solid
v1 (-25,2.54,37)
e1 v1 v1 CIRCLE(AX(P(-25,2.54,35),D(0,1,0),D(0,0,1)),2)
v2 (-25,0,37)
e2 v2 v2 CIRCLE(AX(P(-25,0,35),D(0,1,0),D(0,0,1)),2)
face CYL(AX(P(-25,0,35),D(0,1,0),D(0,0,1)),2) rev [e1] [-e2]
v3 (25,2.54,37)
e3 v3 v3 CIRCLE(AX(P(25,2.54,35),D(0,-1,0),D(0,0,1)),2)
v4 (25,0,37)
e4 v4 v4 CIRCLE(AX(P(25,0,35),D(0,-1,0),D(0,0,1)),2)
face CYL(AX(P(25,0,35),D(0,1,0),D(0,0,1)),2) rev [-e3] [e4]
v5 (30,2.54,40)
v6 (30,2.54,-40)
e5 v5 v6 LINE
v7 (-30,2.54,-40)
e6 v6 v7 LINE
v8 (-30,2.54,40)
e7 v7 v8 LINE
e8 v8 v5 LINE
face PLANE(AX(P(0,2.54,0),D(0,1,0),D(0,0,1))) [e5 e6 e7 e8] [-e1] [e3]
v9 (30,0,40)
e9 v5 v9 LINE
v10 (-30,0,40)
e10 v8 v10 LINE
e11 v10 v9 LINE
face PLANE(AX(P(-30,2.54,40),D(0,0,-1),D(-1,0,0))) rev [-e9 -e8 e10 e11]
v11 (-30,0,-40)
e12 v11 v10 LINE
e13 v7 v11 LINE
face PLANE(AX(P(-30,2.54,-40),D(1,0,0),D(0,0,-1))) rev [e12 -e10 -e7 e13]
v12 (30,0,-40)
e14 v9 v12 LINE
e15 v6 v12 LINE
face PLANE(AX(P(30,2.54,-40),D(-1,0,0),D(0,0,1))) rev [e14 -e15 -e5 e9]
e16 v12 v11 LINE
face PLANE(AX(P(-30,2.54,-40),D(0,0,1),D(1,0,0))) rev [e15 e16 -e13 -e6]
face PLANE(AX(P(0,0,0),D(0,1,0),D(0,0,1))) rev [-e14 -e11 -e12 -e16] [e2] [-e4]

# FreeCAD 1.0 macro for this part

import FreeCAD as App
import Part
import Sketcher
from FreeCAD import Vector
Q = App.Units.Quantity


def add_polygon(sketch, points):
    """Adds a closed chain of lines whose ends are joined by coincident constraints."""
    first, n = sketch.GeometryCount, len(points)
    for a, b in zip(points, points[1:] + points[:1]):
        sketch.addGeometry(Part.LineSegment(App.Vector(*a, 0), App.Vector(*b, 0)), False)
    for i in range(n):
        sketch.addConstraint(Sketcher.Constraint("Coincident", first + i, 2, first + (i + 1) % n, 1))

doc = App.newDocument("Part")
body = doc.addObject("PartDesign::Body", "Body")

# Sketch on XZ plane
sketch1 = body.newObject("Sketcher::SketchObject", "Sketch")
sketch1.AttachmentSupport = (doc.getObject("XZ_Plane"), [""])
sketch1.MapMode = "FlatFace"
add_polygon(sketch1, [(-30, -40), (-30, 40), (30, 40), (30, -40)])  # lines 0-3
sketch1.addConstraint([
    Sketcher.Constraint("Vertical", 0),
    Sketcher.Constraint("Horizontal", 1),
    Sketcher.Constraint("Vertical", 2),
    Sketcher.Constraint("Horizontal", 3),
    Sketcher.Constraint("Symmetric", 0, 2, 2, 2, -1, 1),
    Sketcher.Constraint("DistanceX", 1, 1, 1, 2, Q("60 mm")),
    Sketcher.Constraint("DistanceY", 0, 1, 0, 2, Q("80 mm")),
])
pad1 = body.newObject("PartDesign::Pad", "Pad")
pad1.Profile = sketch1
pad1.Length = 2.54
pad1.Reversed = True

# Sketch on XZ plane
sketch2 = body.newObject("Sketcher::SketchObject", "Sketch001")
sketch2.AttachmentSupport = (doc.getObject("XZ_Plane"), [""])
sketch2.MapMode = "FlatFace"
sketch2.AttachmentOffset = App.Placement(Vector(0, 0, -2.54), App.Rotation())
sketch2.addGeometry(Part.Circle(Vector(-25, 35, 0), Vector(0, 0, 1), 2), False)
sketch2.addConstraint([
    Sketcher.Constraint("Diameter", 0, Q("4 mm")),
    Sketcher.Constraint("DistanceX", 0, 3, -1, 1, Q("25 mm")),
    Sketcher.Constraint("DistanceY", -1, 1, 0, 3, Q("35 mm")),
])
pocket1 = body.newObject("PartDesign::Pocket", "Pocket")
pocket1.Profile = sketch2
pocket1.Type = "ThroughAll"
pocket1.Reversed = True
doc.recompute()

mirrored = body.newObject("PartDesign::Mirrored", "Mirrored")
mirrored.Originals = [pocket1]
mirrored.MirrorPlane = (doc.getObject("YZ_Plane"), [""])
body.Tip = mirrored

doc.recompute()
